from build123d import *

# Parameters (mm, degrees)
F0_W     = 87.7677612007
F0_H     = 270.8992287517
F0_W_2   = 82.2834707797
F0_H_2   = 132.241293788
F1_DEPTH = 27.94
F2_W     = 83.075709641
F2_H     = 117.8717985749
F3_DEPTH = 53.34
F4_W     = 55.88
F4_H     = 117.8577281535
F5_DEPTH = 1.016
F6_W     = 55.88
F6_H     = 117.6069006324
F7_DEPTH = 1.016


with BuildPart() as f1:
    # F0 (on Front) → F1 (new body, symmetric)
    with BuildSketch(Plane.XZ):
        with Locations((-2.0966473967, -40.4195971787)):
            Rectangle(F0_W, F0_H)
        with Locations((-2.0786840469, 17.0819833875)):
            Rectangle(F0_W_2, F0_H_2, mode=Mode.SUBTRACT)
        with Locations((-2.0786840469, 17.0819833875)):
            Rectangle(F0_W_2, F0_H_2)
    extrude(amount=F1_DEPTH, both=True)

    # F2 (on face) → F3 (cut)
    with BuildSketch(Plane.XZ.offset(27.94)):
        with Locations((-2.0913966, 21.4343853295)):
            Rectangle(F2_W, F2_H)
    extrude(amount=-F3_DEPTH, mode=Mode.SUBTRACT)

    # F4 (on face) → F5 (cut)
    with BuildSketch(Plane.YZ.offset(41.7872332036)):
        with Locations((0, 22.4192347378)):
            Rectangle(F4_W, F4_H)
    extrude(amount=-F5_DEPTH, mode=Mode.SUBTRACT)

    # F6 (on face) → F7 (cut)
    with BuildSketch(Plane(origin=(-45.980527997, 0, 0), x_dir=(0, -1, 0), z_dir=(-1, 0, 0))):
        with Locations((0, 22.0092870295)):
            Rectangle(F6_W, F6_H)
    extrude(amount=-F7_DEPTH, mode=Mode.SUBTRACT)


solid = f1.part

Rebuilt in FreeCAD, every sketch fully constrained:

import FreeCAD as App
import Part
import Sketcher
from FreeCAD import Vector
Q = App.Units.Quantity

doc = App.newDocument("Part")
body = doc.addObject("PartDesign::Body", "Body")

sketch1 = doc.addObject("Sketcher::SketchObject", "Sketch")
body.addObject(sketch1)
sketch1.AttachmentSupport = (doc.XZ_Plane, [""])
sketch1.MapMode = "FlatFace"
sketch1.addGeometry(Part.LineSegment(Vector(-46, 95, 0), Vector(-46, -176, 0)), False)
sketch1.addGeometry(Part.LineSegment(Vector(-46, -176, 0), Vector(42, -176, 0)), False)
sketch1.addGeometry(Part.LineSegment(Vector(42, -176, 0), Vector(42, 95, 0)), False)
sketch1.addGeometry(Part.LineSegment(Vector(42, 95, 0), Vector(-46, 95, 0)), False)
sketch1.addConstraint(Sketcher.Constraint("Coincident", 0, 2, 1, 1))
sketch1.addConstraint(Sketcher.Constraint("Coincident", 1, 2, 2, 1))
sketch1.addConstraint(Sketcher.Constraint("Coincident", 2, 2, 3, 1))
sketch1.addConstraint(Sketcher.Constraint("Coincident", 3, 2, 0, 1))
sketch1.addConstraint(Sketcher.Constraint("Vertical", 0))
sketch1.addConstraint(Sketcher.Constraint("Horizontal", 1))
sketch1.addConstraint(Sketcher.Constraint("Vertical", 2))
sketch1.addConstraint(Sketcher.Constraint("Horizontal", 3))
sketch1.addConstraint(Sketcher.Constraint("DistanceX", 1, 1, 1, 2, 87.767761))
sketch1.addConstraint(Sketcher.Constraint("DistanceY", 0, 2, 0, 1, 270.899229))
sketch1.addConstraint(Sketcher.Constraint("DistanceY", 0, 2, -1, 1, 175.869212))
sketch1.addConstraint(Sketcher.Constraint("DistanceX", 0, 2, -1, 1, 45.980528))
pad1 = doc.addObject("PartDesign::Pad", "Pad")
body.addObject(pad1)
pad1.Profile = sketch1
pad1.Length = Q("2.2 in")
pad1.Midplane = True

sketch2 = doc.addObject("Sketcher::SketchObject", "Sketch001")
body.addObject(sketch2)
sketch2.AttachmentSupport = (doc.XZ_Plane, [""])
sketch2.MapMode = "FlatFace"
sketch2.AttachmentOffset = App.Placement(Vector(0, 0, 1.1 * 25.4), App.Rotation())
sketch2.addGeometry(Part.LineSegment(Vector(-44, 80, 0), Vector(-44, -38, 0)), False)
sketch2.addGeometry(Part.LineSegment(Vector(-44, -38, 0), Vector(39, -38, 0)), False)
sketch2.addGeometry(Part.LineSegment(Vector(39, -38, 0), Vector(39, 80, 0)), False)
sketch2.addGeometry(Part.LineSegment(Vector(39, 80, 0), Vector(-44, 80, 0)), False)
sketch2.addConstraint(Sketcher.Constraint("Coincident", 0, 2, 1, 1))
sketch2.addConstraint(Sketcher.Constraint("Coincident", 1, 2, 2, 1))
sketch2.addConstraint(Sketcher.Constraint("Coincident", 2, 2, 3, 1))
sketch2.addConstraint(Sketcher.Constraint("Coincident", 3, 2, 0, 1))
sketch2.addConstraint(Sketcher.Constraint("Vertical", 0))
sketch2.addConstraint(Sketcher.Constraint("Horizontal", 1))
sketch2.addConstraint(Sketcher.Constraint("Vertical", 2))
sketch2.addConstraint(Sketcher.Constraint("Horizontal", 3))
sketch2.addConstraint(Sketcher.Constraint("DistanceY", 0, 2, 0, 1, 117.871799))
sketch2.addConstraint(Sketcher.Constraint("DistanceX", 1, 1, 1, 2, 83.07571))
sketch2.addConstraint(Sketcher.Constraint("DistanceX", 0, 2, -1, 1, 43.629251))
sketch2.addConstraint(Sketcher.Constraint("DistanceY", 0, 2, -1, 1, 37.501514))
pocket1 = doc.addObject("PartDesign::Pocket", "Pocket")
body.addObject(pocket1)
pocket1.Profile = sketch2
pocket1.Length = Q("2.1 in")

sketch3 = doc.addObject("Sketcher::SketchObject", "Sketch002")
body.addObject(sketch3)
sketch3.AttachmentSupport = (doc.YZ_Plane, [""])
sketch3.MapMode = "FlatFace"
sketch3.AttachmentOffset = App.Placement(Vector(0, 0, 41.787233), App.Rotation())
sketch3.addGeometry(Part.LineSegment(Vector(-28, 81, 0), Vector(-28, -37, 0)), False)
sketch3.addGeometry(Part.LineSegment(Vector(-28, -37, 0), Vector(28, -37, 0)), False)
sketch3.addGeometry(Part.LineSegment(Vector(28, -37, 0), Vector(28, 81, 0)), False)
sketch3.addGeometry(Part.LineSegment(Vector(28, 81, 0), Vector(-28, 81, 0)), False)
sketch3.addConstraint(Sketcher.Constraint("Coincident", 0, 2, 1, 1))
sketch3.addConstraint(Sketcher.Constraint("Coincident", 1, 2, 2, 1))
sketch3.addConstraint(Sketcher.Constraint("Coincident", 2, 2, 3, 1))
sketch3.addConstraint(Sketcher.Constraint("Coincident", 3, 2, 0, 1))
sketch3.addConstraint(Sketcher.Constraint("Vertical", 0))
sketch3.addConstraint(Sketcher.Constraint("Horizontal", 1))
sketch3.addConstraint(Sketcher.Constraint("Vertical", 2))
sketch3.addConstraint(Sketcher.Constraint("Horizontal", 3))
sketch3.addConstraint(Sketcher.Constraint("DistanceX", 1, 1, 1, 2, Q("2.2 in")))
sketch3.addConstraint(Sketcher.Constraint("DistanceX", 0, 2, -1, 1, Q("1.1 in")))
sketch3.addConstraint(Sketcher.Constraint("DistanceY", 0, 2, 0, 1, 117.857728))
sketch3.addConstraint(Sketcher.Constraint("DistanceY", -1, 1, 2, 2, 81.348099))
pocket2 = doc.addObject("PartDesign::Pocket", "Pocket001")
body.addObject(pocket2)
pocket2.Profile = sketch3
pocket2.Length = Q("0.04 in")

sketch4 = doc.addObject("Sketcher::SketchObject", "Sketch003")
body.addObject(sketch4)
sketch4.AttachmentSupport = (doc.YZ_Plane, [""])
sketch4.MapMode = "FlatFace"
sketch4.AttachmentOffset = App.Placement(Vector(0, 0, -45.980528), App.Rotation())
sketch4.addGeometry(Part.LineSegment(Vector(28, 81, 0), Vector(28, -37, 0)), False)
sketch4.addGeometry(Part.LineSegment(Vector(28, -37, 0), Vector(-28, -37, 0)), False)
sketch4.addGeometry(Part.LineSegment(Vector(-28, -37, 0), Vector(-28, 81, 0)), False)
sketch4.addGeometry(Part.LineSegment(Vector(-28, 81, 0), Vector(28, 81, 0)), False)
sketch4.addConstraint(Sketcher.Constraint("Coincident", 0, 2, 1, 1))
sketch4.addConstraint(Sketcher.Constraint("Coincident", 1, 2, 2, 1))
sketch4.addConstraint(Sketcher.Constraint("Coincident", 2, 2, 3, 1))
sketch4.addConstraint(Sketcher.Constraint("Coincident", 3, 2, 0, 1))
sketch4.addConstraint(Sketcher.Constraint("Vertical", 0))
sketch4.addConstraint(Sketcher.Constraint("Horizontal", 1))
sketch4.addConstraint(Sketcher.Constraint("Vertical", 2))
sketch4.addConstraint(Sketcher.Constraint("Horizontal", 3))
sketch4.addConstraint(Sketcher.Constraint("DistanceX", 1, 2, 1, 1, Q("2.2 in")))
sketch4.addConstraint(Sketcher.Constraint("DistanceX", -1, 1, 0, 2, Q("1.1 in")))
sketch4.addConstraint(Sketcher.Constraint("DistanceY", 0, 2, 0, 1, 117.606901))
sketch4.addConstraint(Sketcher.Constraint("DistanceY", 0, 2, -1, 1, 36.794163))
pocket3 = doc.addObject("PartDesign::Pocket", "Pocket002")
body.addObject(pocket3)
pocket3.Profile = sketch4
pocket3.Length = Q("0.04 in")
pocket3.Reversed = True

doc.recompute()
